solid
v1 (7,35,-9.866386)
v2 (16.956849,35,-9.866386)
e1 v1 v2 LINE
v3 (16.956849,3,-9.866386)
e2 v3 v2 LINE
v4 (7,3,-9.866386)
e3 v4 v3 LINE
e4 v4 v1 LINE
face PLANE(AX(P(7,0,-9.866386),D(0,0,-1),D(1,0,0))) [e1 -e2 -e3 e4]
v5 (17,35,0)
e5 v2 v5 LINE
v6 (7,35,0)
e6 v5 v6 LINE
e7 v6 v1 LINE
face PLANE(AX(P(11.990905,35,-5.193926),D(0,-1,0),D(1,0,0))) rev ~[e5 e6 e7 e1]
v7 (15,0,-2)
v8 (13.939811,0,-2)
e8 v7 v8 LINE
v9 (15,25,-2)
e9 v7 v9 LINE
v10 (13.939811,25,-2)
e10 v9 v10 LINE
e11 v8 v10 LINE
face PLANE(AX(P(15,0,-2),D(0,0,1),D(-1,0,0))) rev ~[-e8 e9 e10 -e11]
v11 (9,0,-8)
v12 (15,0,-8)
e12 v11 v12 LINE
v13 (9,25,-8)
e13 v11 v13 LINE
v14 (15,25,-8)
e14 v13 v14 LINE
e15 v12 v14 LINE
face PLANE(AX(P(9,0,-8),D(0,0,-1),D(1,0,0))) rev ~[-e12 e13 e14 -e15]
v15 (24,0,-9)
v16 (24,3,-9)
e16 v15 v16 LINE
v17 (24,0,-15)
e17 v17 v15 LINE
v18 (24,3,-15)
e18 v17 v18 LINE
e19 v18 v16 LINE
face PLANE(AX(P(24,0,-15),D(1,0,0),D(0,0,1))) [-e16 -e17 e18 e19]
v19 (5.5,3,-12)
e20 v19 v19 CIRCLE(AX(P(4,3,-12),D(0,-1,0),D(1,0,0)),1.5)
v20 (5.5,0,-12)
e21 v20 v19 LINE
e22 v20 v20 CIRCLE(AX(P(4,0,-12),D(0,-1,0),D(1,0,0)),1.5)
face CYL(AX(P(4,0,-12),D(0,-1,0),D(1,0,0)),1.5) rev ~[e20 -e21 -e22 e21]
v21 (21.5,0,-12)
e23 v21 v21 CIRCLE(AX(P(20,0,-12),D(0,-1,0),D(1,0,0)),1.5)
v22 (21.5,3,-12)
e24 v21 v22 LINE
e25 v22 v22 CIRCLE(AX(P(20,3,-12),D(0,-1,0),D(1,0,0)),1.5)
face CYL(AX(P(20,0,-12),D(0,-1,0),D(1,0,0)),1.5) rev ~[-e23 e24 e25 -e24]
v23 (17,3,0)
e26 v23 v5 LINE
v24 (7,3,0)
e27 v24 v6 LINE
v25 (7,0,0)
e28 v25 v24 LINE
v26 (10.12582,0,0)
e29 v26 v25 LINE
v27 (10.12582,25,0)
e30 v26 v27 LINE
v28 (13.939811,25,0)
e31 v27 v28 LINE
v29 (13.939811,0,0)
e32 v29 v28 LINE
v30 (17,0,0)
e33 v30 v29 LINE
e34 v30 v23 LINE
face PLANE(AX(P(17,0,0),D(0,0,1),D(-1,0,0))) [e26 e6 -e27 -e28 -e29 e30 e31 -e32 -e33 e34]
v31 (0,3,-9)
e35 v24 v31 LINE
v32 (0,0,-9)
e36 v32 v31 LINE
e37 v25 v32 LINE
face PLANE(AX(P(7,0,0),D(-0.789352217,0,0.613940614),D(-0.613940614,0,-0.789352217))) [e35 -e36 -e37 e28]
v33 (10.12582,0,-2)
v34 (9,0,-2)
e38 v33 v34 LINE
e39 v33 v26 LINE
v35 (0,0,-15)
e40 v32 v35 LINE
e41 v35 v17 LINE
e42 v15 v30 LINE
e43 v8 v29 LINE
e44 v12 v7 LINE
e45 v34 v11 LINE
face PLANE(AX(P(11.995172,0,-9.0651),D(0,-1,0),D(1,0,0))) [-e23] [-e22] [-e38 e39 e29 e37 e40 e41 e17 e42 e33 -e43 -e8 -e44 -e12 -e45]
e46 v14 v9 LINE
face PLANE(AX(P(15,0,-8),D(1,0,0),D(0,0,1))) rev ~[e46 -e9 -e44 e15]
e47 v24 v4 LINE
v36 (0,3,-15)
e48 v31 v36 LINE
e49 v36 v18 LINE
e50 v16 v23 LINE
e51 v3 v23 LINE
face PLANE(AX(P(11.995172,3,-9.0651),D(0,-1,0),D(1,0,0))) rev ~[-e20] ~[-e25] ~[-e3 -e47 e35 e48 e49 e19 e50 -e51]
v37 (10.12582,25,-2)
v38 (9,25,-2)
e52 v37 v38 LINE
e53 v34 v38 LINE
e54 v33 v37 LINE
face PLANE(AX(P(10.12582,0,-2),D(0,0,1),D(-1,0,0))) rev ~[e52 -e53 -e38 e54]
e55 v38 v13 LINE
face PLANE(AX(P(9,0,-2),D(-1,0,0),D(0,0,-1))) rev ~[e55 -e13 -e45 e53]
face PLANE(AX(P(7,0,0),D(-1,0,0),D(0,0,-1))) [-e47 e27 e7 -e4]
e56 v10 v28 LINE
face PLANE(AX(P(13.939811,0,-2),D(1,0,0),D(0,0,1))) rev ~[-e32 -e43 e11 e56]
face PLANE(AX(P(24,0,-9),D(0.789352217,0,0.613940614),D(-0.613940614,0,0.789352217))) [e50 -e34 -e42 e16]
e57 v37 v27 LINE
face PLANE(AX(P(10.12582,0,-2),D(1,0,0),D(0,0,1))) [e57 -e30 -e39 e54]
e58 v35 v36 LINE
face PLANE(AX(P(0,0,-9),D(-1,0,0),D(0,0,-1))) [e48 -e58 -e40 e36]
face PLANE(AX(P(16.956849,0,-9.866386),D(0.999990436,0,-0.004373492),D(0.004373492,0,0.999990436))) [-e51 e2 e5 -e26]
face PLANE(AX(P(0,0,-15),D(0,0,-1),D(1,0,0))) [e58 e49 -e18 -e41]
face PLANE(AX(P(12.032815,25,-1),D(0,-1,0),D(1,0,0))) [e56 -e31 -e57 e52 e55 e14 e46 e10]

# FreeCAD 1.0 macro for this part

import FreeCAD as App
import Part
import Sketcher

V = App.Vector
Q = App.Units.Quantity

doc = App.newDocument("Part")
body = doc.addObject("PartDesign::Body", "Body")

sketch1 = doc.addObject("Sketcher::SketchObject", "Sketch")
body.addObject(sketch1)
sketch1.AttachmentSupport = (doc.XZ_Plane, [""])
sketch1.MapMode = "FlatFace"
sketch1.addGeometry(Part.LineSegment(V(24, -9, 0), V(17, 0, 0)), False)
sketch1.addGeometry(Part.LineSegment(V(17, 0, 0), V(7, 0, 0)), False)
sketch1.addGeometry(Part.LineSegment(V(7, 0, 0), V(0, -9, 0)), False)
sketch1.addGeometry(Part.LineSegment(V(0, -9, 0), V(0, -15, 0)), False)
sketch1.addGeometry(Part.LineSegment(V(0, -15, 0), V(24, -15, 0)), False)
sketch1.addGeometry(Part.LineSegment(V(24, -15, 0), V(24, -9, 0)), False)
sketch1.addGeometry(Part.Circle(V(4, -12, 0), V(0, 0, 1), 1.5), False)
sketch1.addGeometry(Part.Circle(V(20, -12, 0), V(0, 0, 1), 1.5), False)
sketch1.addConstraint(Sketcher.Constraint("Coincident", 0, 2, 1, 1))
sketch1.addConstraint(Sketcher.Constraint("Coincident", 1, 2, 2, 1))
sketch1.addConstraint(Sketcher.Constraint("Coincident", 2, 2, 3, 1))
sketch1.addConstraint(Sketcher.Constraint("Coincident", 3, 2, 4, 1))
sketch1.addConstraint(Sketcher.Constraint("Coincident", 4, 2, 5, 1))
sketch1.addConstraint(Sketcher.Constraint("Coincident", 5, 2, 0, 1))
sketch1.addConstraint(Sketcher.Constraint("Horizontal", 1))
sketch1.addConstraint(Sketcher.Constraint("Vertical", 3))
sketch1.addConstraint(Sketcher.Constraint("Horizontal", 4))
sketch1.addConstraint(Sketcher.Constraint("Vertical", 5))
sketch1.addConstraint(Sketcher.Constraint("Equal", 6, 7))
sketch1.addConstraint(Sketcher.Constraint("PointOnObject", 0, 2, -1))
sketch1.addConstraint(Sketcher.Constraint("PointOnObject", 2, 2, -2))
sketch1.addConstraint(Sketcher.Constraint("Horizontal", 6, 3, 7, 3))
sketch1.addConstraint(Sketcher.Constraint("Horizontal", 2, 2, 5, 2))
sketch1.addConstraint(Sketcher.Constraint("Equal", 0, 2))
sketch1.addConstraint(Sketcher.Constraint("Diameter", 6, Q("3 mm")))
sketch1.addConstraint(Sketcher.Constraint("DistanceX", 1, 2, 1, 1, Q("10 mm")))
sketch1.addConstraint(Sketcher.Constraint("DistanceX", 4, 1, 4, 2, Q("24 mm")))
sketch1.addConstraint(Sketcher.Constraint("DistanceY", 3, 2, 3, 1, Q("6 mm")))
sketch1.addConstraint(Sketcher.Constraint("DistanceX", -1, 1, 6, 3, Q("4 mm")))
sketch1.addConstraint(Sketcher.Constraint("DistanceY", 6, 3, -1, 1, Q("12 mm")))
sketch1.addConstraint(Sketcher.Constraint("DistanceX", -1, 1, 7, 3, Q("20 mm")))
sketch1.addConstraint(Sketcher.Constraint("DistanceY", 2, 2, -1, 1, Q("9 mm")))
pad1 = doc.addObject("PartDesign::Pad", "Pad")
body.addObject(pad1)
pad1.Profile = sketch1
pad1.Length = 3
pad1.Reversed = True

sketch2 = doc.addObject("Sketcher::SketchObject", "Sketch001")
body.addObject(sketch2)
sketch2.AttachmentSupport = (doc.XZ_Plane, [""])
sketch2.MapMode = "FlatFace"
sketch2.addGeometry(Part.LineSegment(V(7, 0, 0), V(7, -10, 0)), False)
sketch2.addGeometry(Part.LineSegment(V(7, -10, 0), V(17, -10, 0)), False)
sketch2.addGeometry(Part.LineSegment(V(17, -10, 0), V(17, 0, 0)), False)
sketch2.addGeometry(Part.LineSegment(V(17, 0, 0), V(7, 0, 0)), False)
sketch2.addConstraint(Sketcher.Constraint("Coincident", 0, 2, 1, 1))
sketch2.addConstraint(Sketcher.Constraint("Coincident", 1, 2, 2, 1))
sketch2.addConstraint(Sketcher.Constraint("Coincident", 2, 2, 3, 1))
sketch2.addConstraint(Sketcher.Constraint("Coincident", 3, 2, 0, 1))
sketch2.addConstraint(Sketcher.Constraint("Vertical", 0))
sketch2.addConstraint(Sketcher.Constraint("Horizontal", 1))
sketch2.addConstraint(Sketcher.Constraint("Horizontal", 3))
sketch2.addConstraint(Sketcher.Constraint("PointOnObject", 2, 2, -1))
sketch2.addConstraint(Sketcher.Constraint("DistanceX", 3, 2, 3, 1, Q("10 mm")))
sketch2.addConstraint(Sketcher.Constraint("DistanceX", -1, 1, 0, 2, Q("7 mm")))
sketch2.addConstraint(Sketcher.Constraint("DistanceX", 1, 1, 1, 2, Q("9.956849 mm")))
sketch2.addConstraint(Sketcher.Constraint("Distance", 2, Q("9.86648 mm")))
pad2 = doc.addObject("PartDesign::Pad", "Pad001")
body.addObject(pad2)
pad2.Profile = sketch2
pad2.Length = 35
pad2.Reversed = True

sketch3 = doc.addObject("Sketcher::SketchObject", "Sketch002")
body.addObject(sketch3)
sketch3.AttachmentSupport = (doc.XZ_Plane, [""])
sketch3.MapMode = "FlatFace"
sketch3.addGeometry(Part.LineSegment(V(10.1, 0, 0), V(10.1, -2, 0)), False)
sketch3.addGeometry(Part.LineSegment(V(10.1, -2, 0), V(9, -2, 0)), False)
sketch3.addGeometry(Part.LineSegment(V(9, -2, 0), V(9, -8, 0)), False)
sketch3.addGeometry(Part.LineSegment(V(9, -8, 0), V(15, -8, 0)), False)
sketch3.addGeometry(Part.LineSegment(V(15, -8, 0), V(15, -2, 0)), False)
sketch3.addGeometry(Part.LineSegment(V(15, -2, 0), V(13.9, -2, 0)), False)
sketch3.addGeometry(Part.LineSegment(V(13.9, -2, 0), V(13.9, 0, 0)), False)
sketch3.addGeometry(Part.LineSegment(V(13.9, 0, 0), V(10.1, 0, 0)), False)
sketch3.addConstraint(Sketcher.Constraint("Coincident", 0, 2, 1, 1))
sketch3.addConstraint(Sketcher.Constraint("Coincident", 1, 2, 2, 1))
sketch3.addConstraint(Sketcher.Constraint("Coincident", 2, 2, 3, 1))
sketch3.addConstraint(Sketcher.Constraint("Coincident", 3, 2, 4, 1))
sketch3.addConstraint(Sketcher.Constraint("Coincident", 4, 2, 5, 1))
sketch3.addConstraint(Sketcher.Constraint("Coincident", 5, 2, 6, 1))
sketch3.addConstraint(Sketcher.Constraint("Coincident", 6, 2, 7, 1))
sketch3.addConstraint(Sketcher.Constraint("Coincident", 7, 2, 0, 1))
sketch3.addConstraint(Sketcher.Constraint("Vertical", 0))
sketch3.addConstraint(Sketcher.Constraint("Horizontal", 1))
sketch3.addConstraint(Sketcher.Constraint("Vertical", 2))
sketch3.addConstraint(Sketcher.Constraint("Horizontal", 3))
sketch3.addConstraint(Sketcher.Constraint("Vertical", 4))
sketch3.addConstraint(Sketcher.Constraint("Horizontal", 5))
sketch3.addConstraint(Sketcher.Constraint("Vertical", 6))
sketch3.addConstraint(Sketcher.Constraint("Horizontal", 7))
sketch3.addConstraint(Sketcher.Constraint("PointOnObject", 6, 2, -1))
sketch3.addConstraint(Sketcher.Constraint("Horizontal", 1, 2, 4, 2))
sketch3.addConstraint(Sketcher.Constraint("Equal", 3, 2))
sketch3.addConstraint(Sketcher.Constraint("DistanceX", 3, 1, 3, 2, Q("6 mm")))
sketch3.addConstraint(Sketcher.Constraint("DistanceY", 0, 2, 0, 1, Q("2 mm")))
sketch3.addConstraint(Sketcher.Constraint("DistanceX", -1, 1, 1, 2, Q("9 mm")))
sketch3.addConstraint(Sketcher.Constraint("DistanceX", 1, 2, 1, 1, Q("1.12582 mm")))
sketch3.addConstraint(Sketcher.Constraint("DistanceX", 5, 2, 5, 1, Q("1.060189 mm")))
pocket1 = doc.addObject("PartDesign::Pocket", "Pocket")
body.addObject(pocket1)
pocket1.Profile = sketch3
pocket1.Length = 25

doc.recompute()
